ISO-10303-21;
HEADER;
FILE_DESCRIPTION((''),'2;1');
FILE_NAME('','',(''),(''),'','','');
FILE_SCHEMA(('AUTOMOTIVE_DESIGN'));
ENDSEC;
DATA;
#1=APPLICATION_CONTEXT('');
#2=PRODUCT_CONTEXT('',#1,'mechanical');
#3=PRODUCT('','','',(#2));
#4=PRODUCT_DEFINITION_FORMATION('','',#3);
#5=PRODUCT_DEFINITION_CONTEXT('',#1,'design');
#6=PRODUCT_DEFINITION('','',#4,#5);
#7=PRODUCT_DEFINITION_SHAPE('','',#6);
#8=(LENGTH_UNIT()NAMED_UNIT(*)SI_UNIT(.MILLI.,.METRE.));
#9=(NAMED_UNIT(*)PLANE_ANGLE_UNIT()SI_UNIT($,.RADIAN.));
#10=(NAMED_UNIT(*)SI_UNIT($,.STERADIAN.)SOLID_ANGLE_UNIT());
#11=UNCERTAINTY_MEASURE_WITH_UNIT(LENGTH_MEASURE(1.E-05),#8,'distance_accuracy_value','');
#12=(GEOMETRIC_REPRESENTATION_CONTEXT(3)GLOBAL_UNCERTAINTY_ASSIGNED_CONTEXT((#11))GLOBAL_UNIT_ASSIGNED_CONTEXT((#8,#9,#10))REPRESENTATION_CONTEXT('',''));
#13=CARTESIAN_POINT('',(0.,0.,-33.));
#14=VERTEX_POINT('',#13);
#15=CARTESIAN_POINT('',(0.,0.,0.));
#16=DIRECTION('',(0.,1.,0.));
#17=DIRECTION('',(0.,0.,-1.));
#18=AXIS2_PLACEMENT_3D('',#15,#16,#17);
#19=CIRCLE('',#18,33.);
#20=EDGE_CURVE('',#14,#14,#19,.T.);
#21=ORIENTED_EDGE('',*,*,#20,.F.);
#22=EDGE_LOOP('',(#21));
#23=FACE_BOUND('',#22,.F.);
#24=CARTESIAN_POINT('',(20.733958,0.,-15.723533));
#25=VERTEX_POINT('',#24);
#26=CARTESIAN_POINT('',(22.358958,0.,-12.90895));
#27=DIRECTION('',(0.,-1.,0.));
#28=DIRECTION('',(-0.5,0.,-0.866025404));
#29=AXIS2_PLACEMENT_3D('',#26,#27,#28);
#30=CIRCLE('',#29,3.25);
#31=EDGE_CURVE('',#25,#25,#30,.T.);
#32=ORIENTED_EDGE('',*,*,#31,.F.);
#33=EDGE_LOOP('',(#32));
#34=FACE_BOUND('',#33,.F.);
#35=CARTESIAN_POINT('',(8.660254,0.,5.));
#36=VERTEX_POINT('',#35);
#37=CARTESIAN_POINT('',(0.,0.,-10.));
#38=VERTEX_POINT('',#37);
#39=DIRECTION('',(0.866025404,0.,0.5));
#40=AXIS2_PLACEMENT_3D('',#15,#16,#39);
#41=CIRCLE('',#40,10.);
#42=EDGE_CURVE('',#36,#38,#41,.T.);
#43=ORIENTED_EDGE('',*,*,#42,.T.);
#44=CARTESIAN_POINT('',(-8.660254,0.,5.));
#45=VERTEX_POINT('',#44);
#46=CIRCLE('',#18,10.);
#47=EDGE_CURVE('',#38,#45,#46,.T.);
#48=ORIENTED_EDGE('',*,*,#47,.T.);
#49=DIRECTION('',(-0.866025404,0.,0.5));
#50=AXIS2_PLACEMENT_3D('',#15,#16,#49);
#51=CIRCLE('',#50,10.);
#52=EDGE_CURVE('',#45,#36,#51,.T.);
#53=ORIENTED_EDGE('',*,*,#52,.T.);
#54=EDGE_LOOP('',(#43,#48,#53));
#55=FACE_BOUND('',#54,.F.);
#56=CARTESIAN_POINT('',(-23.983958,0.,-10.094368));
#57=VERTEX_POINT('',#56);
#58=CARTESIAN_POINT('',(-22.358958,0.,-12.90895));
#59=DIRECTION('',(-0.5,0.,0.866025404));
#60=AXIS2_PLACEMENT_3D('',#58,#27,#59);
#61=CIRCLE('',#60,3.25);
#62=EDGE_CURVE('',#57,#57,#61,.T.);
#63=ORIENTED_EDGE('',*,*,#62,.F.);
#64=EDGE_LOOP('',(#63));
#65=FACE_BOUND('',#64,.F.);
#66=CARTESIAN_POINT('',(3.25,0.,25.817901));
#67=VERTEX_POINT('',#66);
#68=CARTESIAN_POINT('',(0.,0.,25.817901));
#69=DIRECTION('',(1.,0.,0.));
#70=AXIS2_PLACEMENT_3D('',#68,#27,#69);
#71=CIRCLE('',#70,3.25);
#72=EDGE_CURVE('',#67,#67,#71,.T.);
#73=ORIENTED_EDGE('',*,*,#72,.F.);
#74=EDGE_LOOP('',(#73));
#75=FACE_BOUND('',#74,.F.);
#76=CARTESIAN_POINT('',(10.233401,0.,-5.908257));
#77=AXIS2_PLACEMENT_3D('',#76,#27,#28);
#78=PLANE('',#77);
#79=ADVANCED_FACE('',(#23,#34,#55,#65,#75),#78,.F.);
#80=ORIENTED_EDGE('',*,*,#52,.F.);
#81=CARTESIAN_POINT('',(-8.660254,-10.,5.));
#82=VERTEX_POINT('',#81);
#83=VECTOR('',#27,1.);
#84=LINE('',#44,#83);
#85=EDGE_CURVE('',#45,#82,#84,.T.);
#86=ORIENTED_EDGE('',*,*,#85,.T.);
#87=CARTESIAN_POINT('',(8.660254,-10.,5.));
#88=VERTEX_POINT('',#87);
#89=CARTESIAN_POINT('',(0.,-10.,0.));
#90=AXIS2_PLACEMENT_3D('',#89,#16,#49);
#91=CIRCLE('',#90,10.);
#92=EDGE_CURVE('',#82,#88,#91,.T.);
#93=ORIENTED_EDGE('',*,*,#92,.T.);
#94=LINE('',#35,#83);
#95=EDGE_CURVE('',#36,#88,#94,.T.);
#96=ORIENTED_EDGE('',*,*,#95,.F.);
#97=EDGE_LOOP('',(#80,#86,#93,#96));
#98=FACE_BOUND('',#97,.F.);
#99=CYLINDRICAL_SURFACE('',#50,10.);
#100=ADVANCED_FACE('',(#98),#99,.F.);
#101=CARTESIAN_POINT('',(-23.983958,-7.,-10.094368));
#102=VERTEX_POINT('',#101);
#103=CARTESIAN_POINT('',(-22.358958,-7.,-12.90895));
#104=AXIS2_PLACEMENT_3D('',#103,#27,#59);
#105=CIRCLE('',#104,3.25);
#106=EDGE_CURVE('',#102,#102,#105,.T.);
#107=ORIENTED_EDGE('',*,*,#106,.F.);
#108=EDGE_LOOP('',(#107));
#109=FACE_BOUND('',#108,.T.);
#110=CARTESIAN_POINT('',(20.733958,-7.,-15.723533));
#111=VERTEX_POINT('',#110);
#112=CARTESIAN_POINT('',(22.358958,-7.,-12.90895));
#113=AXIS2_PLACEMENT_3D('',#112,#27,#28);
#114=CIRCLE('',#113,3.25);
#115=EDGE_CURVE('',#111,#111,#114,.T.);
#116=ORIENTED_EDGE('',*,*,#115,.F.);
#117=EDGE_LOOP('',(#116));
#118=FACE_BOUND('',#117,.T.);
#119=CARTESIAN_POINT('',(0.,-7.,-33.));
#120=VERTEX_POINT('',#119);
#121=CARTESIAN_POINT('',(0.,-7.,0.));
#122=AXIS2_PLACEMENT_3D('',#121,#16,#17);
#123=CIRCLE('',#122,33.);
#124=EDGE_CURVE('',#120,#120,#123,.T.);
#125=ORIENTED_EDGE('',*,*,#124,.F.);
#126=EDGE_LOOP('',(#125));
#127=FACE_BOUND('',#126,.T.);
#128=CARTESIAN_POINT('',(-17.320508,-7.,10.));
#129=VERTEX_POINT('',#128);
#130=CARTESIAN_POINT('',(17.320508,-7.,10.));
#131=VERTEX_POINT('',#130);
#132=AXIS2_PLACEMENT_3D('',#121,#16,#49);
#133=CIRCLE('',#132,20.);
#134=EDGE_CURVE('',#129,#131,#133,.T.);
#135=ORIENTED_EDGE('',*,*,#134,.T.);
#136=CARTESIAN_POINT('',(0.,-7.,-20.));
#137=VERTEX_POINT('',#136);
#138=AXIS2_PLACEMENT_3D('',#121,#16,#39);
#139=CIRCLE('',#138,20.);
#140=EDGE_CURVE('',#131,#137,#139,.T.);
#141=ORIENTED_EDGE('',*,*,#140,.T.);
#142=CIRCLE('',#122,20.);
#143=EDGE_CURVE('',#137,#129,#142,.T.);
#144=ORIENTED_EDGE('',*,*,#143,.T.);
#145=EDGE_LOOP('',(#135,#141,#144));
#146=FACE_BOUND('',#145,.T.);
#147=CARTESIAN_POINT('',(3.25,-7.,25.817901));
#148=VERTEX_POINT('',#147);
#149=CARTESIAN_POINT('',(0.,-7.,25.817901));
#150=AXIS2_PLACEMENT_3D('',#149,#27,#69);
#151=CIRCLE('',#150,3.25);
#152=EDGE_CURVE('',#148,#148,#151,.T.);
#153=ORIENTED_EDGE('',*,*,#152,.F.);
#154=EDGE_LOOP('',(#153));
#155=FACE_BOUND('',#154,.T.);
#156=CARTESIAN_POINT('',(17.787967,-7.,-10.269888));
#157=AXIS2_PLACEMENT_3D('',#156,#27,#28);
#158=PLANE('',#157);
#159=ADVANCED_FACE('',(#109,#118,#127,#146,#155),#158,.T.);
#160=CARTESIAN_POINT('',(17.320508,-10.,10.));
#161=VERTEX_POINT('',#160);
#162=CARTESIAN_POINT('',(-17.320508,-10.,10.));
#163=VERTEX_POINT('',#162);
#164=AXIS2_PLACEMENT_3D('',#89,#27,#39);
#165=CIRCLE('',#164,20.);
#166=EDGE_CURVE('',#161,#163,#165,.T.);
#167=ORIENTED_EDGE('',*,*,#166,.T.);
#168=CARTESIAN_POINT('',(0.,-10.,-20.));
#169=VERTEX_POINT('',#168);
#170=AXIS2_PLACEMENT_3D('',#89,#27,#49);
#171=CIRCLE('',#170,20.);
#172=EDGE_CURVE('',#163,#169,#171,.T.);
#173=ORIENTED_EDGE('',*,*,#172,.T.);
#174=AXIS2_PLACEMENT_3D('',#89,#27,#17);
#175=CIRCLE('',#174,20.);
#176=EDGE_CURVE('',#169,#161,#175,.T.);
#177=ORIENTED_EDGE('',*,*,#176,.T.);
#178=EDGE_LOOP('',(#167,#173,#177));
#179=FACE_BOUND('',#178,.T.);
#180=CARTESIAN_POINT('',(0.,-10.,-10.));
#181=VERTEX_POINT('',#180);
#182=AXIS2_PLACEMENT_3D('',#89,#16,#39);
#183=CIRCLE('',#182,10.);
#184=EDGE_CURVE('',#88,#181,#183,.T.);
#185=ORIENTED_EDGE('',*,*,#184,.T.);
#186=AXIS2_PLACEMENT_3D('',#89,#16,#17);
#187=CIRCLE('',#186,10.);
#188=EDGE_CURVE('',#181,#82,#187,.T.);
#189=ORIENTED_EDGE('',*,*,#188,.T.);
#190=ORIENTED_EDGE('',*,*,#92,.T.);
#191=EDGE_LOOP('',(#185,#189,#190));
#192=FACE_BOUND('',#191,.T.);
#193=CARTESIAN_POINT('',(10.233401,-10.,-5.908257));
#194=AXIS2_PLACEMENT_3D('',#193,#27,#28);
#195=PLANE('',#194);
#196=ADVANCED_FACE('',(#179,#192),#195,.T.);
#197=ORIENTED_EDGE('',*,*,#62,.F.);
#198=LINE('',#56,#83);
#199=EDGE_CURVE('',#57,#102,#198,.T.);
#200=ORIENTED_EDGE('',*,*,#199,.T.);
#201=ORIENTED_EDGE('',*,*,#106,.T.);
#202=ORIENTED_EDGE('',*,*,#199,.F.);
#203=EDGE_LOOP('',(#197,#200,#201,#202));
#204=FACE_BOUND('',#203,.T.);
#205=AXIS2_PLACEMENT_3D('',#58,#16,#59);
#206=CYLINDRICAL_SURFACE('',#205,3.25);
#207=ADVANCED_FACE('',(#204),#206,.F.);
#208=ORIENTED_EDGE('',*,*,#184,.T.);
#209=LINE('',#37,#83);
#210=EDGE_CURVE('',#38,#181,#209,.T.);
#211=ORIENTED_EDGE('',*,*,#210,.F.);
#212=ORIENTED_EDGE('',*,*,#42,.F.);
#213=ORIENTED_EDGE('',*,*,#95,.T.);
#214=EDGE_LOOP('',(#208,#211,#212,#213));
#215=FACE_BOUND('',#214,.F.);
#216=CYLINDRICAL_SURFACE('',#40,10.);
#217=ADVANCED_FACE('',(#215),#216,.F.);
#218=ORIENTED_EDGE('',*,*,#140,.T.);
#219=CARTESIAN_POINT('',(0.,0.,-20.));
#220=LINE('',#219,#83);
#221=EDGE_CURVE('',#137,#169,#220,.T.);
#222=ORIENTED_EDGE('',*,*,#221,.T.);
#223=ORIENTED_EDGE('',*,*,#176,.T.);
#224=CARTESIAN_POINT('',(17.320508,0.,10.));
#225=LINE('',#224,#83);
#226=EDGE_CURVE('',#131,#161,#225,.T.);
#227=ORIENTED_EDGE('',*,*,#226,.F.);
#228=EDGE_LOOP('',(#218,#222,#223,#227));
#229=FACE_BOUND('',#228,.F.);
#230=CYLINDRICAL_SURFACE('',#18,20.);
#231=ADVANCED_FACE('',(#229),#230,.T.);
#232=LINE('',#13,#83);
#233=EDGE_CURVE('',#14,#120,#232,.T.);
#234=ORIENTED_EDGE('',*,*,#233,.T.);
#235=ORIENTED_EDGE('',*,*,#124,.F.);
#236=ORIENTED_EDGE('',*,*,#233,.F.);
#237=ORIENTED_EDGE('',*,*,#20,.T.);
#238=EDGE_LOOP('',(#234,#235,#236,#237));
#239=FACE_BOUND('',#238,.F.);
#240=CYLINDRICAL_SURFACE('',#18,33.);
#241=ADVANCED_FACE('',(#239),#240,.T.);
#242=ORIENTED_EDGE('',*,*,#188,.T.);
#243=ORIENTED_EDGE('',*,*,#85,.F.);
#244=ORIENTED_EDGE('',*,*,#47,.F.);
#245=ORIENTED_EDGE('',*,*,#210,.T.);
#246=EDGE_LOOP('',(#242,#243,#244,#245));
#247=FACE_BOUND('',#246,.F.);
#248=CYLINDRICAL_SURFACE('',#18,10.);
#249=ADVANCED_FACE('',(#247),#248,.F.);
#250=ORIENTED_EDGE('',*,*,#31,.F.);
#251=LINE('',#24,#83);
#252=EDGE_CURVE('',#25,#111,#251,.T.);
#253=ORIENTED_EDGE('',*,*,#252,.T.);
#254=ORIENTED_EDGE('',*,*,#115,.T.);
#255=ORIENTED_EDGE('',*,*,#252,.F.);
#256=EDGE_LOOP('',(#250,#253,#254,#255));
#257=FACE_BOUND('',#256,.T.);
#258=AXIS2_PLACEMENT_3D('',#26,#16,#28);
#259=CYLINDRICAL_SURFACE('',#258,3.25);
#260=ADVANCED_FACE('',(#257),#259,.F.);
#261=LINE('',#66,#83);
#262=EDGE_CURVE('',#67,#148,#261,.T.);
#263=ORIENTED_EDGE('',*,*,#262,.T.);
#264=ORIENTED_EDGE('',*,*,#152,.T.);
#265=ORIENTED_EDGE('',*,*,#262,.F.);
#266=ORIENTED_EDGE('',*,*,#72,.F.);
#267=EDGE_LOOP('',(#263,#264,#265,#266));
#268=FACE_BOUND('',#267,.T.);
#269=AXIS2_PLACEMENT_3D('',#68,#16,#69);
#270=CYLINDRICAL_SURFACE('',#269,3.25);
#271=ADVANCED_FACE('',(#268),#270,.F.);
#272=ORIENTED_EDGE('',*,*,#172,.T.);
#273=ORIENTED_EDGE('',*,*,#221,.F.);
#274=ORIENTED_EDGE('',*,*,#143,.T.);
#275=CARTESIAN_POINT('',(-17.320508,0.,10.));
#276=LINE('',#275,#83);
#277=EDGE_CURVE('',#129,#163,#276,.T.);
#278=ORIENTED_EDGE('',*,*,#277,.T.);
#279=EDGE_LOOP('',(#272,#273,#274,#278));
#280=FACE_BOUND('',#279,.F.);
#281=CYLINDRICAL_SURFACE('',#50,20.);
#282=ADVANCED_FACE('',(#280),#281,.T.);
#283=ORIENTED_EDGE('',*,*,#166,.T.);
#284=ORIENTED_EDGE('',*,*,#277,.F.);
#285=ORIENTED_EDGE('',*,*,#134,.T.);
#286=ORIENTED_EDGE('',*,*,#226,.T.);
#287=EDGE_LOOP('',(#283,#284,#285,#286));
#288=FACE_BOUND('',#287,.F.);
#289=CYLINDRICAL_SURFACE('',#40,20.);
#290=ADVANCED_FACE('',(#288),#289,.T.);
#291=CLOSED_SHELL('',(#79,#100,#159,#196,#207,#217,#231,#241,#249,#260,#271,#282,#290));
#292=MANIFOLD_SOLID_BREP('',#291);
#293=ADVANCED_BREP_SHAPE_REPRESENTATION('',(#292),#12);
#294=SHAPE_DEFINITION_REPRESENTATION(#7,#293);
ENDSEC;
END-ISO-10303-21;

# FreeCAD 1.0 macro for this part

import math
import FreeCAD as App
import Part
import Sketcher
Q = App.Units.Quantity

doc = App.newDocument("Part")
body = doc.addObject("PartDesign::Body", "Body")

sketch1 = body.newObject("Sketcher::SketchObject", "Sketch")
sketch1.AttachmentSupport = (doc.getObject("XZ_Plane"), [""])
sketch1.MapMode = "FlatFace"
sketch1.addGeometry([
    Part.LineSegment(App.Vector(17.3, 10, 0), App.Vector(28.6, 16.5, 0)),
    Part.ArcOfCircle(Part.Circle(App.Vector(0, 0, 0), App.Vector(0, 0, 1), 33), math.radians(30), math.radians(150)),
    Part.LineSegment(App.Vector(-28.6, 16.5, 0), App.Vector(-17.3, 10, 0)),
    Part.ArcOfCircle(Part.Circle(App.Vector(0, 0, 0), App.Vector(0, 0, 1), 20), math.radians(30), math.radians(150)),
    Part.Circle(App.Vector(0, 25.8, 0), App.Vector(0, 0, 1), 3.2),
], False)
sketch1.addConstraint([
    Sketcher.Constraint("Coincident", 0, 2, 1, 1),
    Sketcher.Constraint("Coincident", 1, 2, 2, 1),
    Sketcher.Constraint("Coincident", 2, 2, 3, 2),
    Sketcher.Constraint("Coincident", 3, 1, 0, 1),
    Sketcher.Constraint("Coincident", 1, 3, -1, 1),
    Sketcher.Constraint("Coincident", 3, 3, -1, 1),
    Sketcher.Constraint("PointOnObject", 4, 3, -2),
    Sketcher.Constraint("Horizontal", 0, 2, 1, 2),
    Sketcher.Constraint("Horizontal", 2, 2, 3, 1),
    Sketcher.Constraint("Radius", 1, 33.0),
    Sketcher.Constraint("Radius", 3, 20.0),
    Sketcher.Constraint("Diameter", 4, 6.5),
    Sketcher.Constraint("Angle", 0, Q("30 deg")),
    Sketcher.Constraint("DistanceY", -1, 1, 2, 2, 10.0),
    Sketcher.Constraint("DistanceY", -1, 1, 4, 3, 25.817901),
])
pad1 = body.newObject("PartDesign::Pad", "Pad")
pad1.Profile = sketch1
pad1.Length = 7

sketch2 = body.newObject("Sketcher::SketchObject", "Sketch001")
sketch2.AttachmentSupport = (doc.getObject("XZ_Plane"), [""])
sketch2.MapMode = "FlatFace"
sketch2.addGeometry([
    Part.LineSegment(App.Vector(9, 5, 0), App.Vector(17, 10, 0)),
    Part.ArcOfCircle(Part.Circle(App.Vector(0, 0, 0), App.Vector(0, 0, 1), 20), math.radians(30), math.radians(150)),
    Part.LineSegment(App.Vector(-17, 10, 0), App.Vector(-9, 5, 0)),
    Part.ArcOfCircle(Part.Circle(App.Vector(0, 0, 0), App.Vector(0, 0, 1), 10), math.radians(30), math.radians(150)),
], False)
sketch2.addConstraint([
    Sketcher.Constraint("Coincident", 0, 2, 1, 1),
    Sketcher.Constraint("Coincident", 1, 2, 2, 1),
    Sketcher.Constraint("Coincident", 2, 2, 3, 2),
    Sketcher.Constraint("Coincident", 3, 1, 0, 1),
    Sketcher.Constraint("Coincident", 1, 3, -1, 1),
    Sketcher.Constraint("Coincident", 3, 3, -1, 1),
    Sketcher.Constraint("Horizontal", 0, 2, 1, 2),
    Sketcher.Constraint("Horizontal", 2, 2, 3, 1),
    Sketcher.Constraint("Radius", 1, 20.0),
    Sketcher.Constraint("Radius", 3, 10.0),
    Sketcher.Constraint("Angle", 0, Q("30 deg")),
    Sketcher.Constraint("DistanceY", -1, 1, 0, 2, 10.0),
])
pad2 = body.newObject("PartDesign::Pad", "Pad001")
pad2.Profile = sketch2
pad2.Length = 10
body2 = doc.addObject("PartDesign::Body", "Body001")
doc.recompute()

body2.BaseFeature = body
doc.recompute()

body3 = doc.addObject("PartDesign::Body", "Body002")
body3.BaseFeature = body
body3.Placement = App.Placement(App.Vector(0, 0, 0), App.Rotation(App.Vector(0, -1, 0), 120))
boolean = body2.newObject("PartDesign::Boolean", "Boolean")
boolean.Type = "Fuse"
boolean.addObjects([body3])
doc.recompute()

body.Placement = App.Placement(App.Vector(0, 0, 0), App.Rotation(App.Vector(0, -1, 0), 240))
boolean2 = body2.newObject("PartDesign::Boolean", "Boolean001")
boolean2.Type = "Fuse"
boolean2.addObjects([body])

doc.recompute()
